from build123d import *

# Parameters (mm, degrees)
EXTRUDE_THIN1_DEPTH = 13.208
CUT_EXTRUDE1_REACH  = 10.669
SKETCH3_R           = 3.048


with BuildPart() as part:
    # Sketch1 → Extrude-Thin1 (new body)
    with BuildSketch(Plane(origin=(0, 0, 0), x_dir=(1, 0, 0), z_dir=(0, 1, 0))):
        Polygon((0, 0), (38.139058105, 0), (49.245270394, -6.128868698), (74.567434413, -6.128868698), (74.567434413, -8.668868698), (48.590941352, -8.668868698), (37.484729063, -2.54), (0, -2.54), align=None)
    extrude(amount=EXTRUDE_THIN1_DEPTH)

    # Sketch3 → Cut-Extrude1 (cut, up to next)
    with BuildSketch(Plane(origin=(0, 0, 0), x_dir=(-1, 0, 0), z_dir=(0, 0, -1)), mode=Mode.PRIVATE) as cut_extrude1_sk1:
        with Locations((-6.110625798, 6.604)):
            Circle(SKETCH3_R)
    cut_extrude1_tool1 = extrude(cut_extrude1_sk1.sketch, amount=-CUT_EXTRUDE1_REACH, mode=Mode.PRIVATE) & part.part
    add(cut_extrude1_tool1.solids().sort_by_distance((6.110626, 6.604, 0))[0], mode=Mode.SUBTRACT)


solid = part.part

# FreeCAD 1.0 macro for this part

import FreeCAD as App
import Part
import Sketcher
from FreeCAD import Vector
Q = App.Units.Quantity


def add_polygon(sketch, points):
    """Adds a closed chain of lines whose ends are joined by coincident constraints."""
    first, n = sketch.GeometryCount, len(points)
    for a, b in zip(points, points[1:] + points[:1]):
        sketch.addGeometry(Part.LineSegment(App.Vector(*a, 0), App.Vector(*b, 0)), False)
    for i in range(n):
        sketch.addConstraint(Sketcher.Constraint("Coincident", first + i, 2, first + (i + 1) % n, 1))

doc = App.newDocument("Part")
body = doc.addObject("PartDesign::Body", "Body")

sketch1 = body.newObject("Sketcher::SketchObject", "Sketch")
sketch1.AttachmentSupport = (doc.getObject("XZ_Plane"), [""])
sketch1.MapMode = "FlatFace"
add_polygon(sketch1, [(38.1, 0), (0, 0), (0, 2.5), (37.5, 2.5), (48.6, 8.7), (74.6, 8.7), (74.6, 6.1), (49.2, 6.1)])
sketch1.addConstraint([
    Sketcher.Constraint("Horizontal", 0),
    Sketcher.Constraint("Vertical", 1),
    Sketcher.Constraint("Horizontal", 2),
    Sketcher.Constraint("Horizontal", 4),
    Sketcher.Constraint("Vertical", 5),
    Sketcher.Constraint("Horizontal", 6),
    Sketcher.Constraint("Coincident", 0, 2, -1, 1),
    Sketcher.Constraint("Parallel", 3, 7),
    Sketcher.Constraint("Equal", 1, 5),
    Sketcher.Constraint("DistanceY", 1, 1, 1, 2, Q("0.1 in")),
    Sketcher.Constraint("DistanceX", 0, 2, 0, 1, 38.139058),
    Sketcher.Constraint("DistanceX", 2, 1, 2, 2, 37.484729),
    Sketcher.Constraint("Distance", 3, 12.685069),
    Sketcher.Constraint("DistanceX", 4, 1, 4, 2, 25.976493),
    Sketcher.Constraint("DistanceX", -1, 1, 3, 2, 48.590941),
])
pad1 = body.newObject("PartDesign::Pad", "Pad")
pad1.Profile = sketch1
pad1.Length = Q("0.52 in")
pad1.Reversed = True

sketch2 = body.newObject("Sketcher::SketchObject", "Sketch001")
sketch2.AttachmentSupport = (doc.getObject("XY_Plane"), [""])
sketch2.MapMode = "FlatFace"
sketch2.addGeometry(Part.Circle(Vector(6.1, 6.6, 0), Vector(0, 0, 1), 3), False)
sketch2.addConstraint([
    Sketcher.Constraint("Diameter", 0, Q("0.24 in")),
    Sketcher.Constraint("DistanceY", -1, 1, 0, 3, Q("0.26 in")),
    Sketcher.Constraint("DistanceX", -1, 1, 0, 3, 6.110626),
])
pocket1 = body.newObject("PartDesign::Pocket", "Pocket")
pocket1.Profile = sketch2
pocket1.Type = "UpToFirst"
pocket1.Reversed = True

doc.recompute()
